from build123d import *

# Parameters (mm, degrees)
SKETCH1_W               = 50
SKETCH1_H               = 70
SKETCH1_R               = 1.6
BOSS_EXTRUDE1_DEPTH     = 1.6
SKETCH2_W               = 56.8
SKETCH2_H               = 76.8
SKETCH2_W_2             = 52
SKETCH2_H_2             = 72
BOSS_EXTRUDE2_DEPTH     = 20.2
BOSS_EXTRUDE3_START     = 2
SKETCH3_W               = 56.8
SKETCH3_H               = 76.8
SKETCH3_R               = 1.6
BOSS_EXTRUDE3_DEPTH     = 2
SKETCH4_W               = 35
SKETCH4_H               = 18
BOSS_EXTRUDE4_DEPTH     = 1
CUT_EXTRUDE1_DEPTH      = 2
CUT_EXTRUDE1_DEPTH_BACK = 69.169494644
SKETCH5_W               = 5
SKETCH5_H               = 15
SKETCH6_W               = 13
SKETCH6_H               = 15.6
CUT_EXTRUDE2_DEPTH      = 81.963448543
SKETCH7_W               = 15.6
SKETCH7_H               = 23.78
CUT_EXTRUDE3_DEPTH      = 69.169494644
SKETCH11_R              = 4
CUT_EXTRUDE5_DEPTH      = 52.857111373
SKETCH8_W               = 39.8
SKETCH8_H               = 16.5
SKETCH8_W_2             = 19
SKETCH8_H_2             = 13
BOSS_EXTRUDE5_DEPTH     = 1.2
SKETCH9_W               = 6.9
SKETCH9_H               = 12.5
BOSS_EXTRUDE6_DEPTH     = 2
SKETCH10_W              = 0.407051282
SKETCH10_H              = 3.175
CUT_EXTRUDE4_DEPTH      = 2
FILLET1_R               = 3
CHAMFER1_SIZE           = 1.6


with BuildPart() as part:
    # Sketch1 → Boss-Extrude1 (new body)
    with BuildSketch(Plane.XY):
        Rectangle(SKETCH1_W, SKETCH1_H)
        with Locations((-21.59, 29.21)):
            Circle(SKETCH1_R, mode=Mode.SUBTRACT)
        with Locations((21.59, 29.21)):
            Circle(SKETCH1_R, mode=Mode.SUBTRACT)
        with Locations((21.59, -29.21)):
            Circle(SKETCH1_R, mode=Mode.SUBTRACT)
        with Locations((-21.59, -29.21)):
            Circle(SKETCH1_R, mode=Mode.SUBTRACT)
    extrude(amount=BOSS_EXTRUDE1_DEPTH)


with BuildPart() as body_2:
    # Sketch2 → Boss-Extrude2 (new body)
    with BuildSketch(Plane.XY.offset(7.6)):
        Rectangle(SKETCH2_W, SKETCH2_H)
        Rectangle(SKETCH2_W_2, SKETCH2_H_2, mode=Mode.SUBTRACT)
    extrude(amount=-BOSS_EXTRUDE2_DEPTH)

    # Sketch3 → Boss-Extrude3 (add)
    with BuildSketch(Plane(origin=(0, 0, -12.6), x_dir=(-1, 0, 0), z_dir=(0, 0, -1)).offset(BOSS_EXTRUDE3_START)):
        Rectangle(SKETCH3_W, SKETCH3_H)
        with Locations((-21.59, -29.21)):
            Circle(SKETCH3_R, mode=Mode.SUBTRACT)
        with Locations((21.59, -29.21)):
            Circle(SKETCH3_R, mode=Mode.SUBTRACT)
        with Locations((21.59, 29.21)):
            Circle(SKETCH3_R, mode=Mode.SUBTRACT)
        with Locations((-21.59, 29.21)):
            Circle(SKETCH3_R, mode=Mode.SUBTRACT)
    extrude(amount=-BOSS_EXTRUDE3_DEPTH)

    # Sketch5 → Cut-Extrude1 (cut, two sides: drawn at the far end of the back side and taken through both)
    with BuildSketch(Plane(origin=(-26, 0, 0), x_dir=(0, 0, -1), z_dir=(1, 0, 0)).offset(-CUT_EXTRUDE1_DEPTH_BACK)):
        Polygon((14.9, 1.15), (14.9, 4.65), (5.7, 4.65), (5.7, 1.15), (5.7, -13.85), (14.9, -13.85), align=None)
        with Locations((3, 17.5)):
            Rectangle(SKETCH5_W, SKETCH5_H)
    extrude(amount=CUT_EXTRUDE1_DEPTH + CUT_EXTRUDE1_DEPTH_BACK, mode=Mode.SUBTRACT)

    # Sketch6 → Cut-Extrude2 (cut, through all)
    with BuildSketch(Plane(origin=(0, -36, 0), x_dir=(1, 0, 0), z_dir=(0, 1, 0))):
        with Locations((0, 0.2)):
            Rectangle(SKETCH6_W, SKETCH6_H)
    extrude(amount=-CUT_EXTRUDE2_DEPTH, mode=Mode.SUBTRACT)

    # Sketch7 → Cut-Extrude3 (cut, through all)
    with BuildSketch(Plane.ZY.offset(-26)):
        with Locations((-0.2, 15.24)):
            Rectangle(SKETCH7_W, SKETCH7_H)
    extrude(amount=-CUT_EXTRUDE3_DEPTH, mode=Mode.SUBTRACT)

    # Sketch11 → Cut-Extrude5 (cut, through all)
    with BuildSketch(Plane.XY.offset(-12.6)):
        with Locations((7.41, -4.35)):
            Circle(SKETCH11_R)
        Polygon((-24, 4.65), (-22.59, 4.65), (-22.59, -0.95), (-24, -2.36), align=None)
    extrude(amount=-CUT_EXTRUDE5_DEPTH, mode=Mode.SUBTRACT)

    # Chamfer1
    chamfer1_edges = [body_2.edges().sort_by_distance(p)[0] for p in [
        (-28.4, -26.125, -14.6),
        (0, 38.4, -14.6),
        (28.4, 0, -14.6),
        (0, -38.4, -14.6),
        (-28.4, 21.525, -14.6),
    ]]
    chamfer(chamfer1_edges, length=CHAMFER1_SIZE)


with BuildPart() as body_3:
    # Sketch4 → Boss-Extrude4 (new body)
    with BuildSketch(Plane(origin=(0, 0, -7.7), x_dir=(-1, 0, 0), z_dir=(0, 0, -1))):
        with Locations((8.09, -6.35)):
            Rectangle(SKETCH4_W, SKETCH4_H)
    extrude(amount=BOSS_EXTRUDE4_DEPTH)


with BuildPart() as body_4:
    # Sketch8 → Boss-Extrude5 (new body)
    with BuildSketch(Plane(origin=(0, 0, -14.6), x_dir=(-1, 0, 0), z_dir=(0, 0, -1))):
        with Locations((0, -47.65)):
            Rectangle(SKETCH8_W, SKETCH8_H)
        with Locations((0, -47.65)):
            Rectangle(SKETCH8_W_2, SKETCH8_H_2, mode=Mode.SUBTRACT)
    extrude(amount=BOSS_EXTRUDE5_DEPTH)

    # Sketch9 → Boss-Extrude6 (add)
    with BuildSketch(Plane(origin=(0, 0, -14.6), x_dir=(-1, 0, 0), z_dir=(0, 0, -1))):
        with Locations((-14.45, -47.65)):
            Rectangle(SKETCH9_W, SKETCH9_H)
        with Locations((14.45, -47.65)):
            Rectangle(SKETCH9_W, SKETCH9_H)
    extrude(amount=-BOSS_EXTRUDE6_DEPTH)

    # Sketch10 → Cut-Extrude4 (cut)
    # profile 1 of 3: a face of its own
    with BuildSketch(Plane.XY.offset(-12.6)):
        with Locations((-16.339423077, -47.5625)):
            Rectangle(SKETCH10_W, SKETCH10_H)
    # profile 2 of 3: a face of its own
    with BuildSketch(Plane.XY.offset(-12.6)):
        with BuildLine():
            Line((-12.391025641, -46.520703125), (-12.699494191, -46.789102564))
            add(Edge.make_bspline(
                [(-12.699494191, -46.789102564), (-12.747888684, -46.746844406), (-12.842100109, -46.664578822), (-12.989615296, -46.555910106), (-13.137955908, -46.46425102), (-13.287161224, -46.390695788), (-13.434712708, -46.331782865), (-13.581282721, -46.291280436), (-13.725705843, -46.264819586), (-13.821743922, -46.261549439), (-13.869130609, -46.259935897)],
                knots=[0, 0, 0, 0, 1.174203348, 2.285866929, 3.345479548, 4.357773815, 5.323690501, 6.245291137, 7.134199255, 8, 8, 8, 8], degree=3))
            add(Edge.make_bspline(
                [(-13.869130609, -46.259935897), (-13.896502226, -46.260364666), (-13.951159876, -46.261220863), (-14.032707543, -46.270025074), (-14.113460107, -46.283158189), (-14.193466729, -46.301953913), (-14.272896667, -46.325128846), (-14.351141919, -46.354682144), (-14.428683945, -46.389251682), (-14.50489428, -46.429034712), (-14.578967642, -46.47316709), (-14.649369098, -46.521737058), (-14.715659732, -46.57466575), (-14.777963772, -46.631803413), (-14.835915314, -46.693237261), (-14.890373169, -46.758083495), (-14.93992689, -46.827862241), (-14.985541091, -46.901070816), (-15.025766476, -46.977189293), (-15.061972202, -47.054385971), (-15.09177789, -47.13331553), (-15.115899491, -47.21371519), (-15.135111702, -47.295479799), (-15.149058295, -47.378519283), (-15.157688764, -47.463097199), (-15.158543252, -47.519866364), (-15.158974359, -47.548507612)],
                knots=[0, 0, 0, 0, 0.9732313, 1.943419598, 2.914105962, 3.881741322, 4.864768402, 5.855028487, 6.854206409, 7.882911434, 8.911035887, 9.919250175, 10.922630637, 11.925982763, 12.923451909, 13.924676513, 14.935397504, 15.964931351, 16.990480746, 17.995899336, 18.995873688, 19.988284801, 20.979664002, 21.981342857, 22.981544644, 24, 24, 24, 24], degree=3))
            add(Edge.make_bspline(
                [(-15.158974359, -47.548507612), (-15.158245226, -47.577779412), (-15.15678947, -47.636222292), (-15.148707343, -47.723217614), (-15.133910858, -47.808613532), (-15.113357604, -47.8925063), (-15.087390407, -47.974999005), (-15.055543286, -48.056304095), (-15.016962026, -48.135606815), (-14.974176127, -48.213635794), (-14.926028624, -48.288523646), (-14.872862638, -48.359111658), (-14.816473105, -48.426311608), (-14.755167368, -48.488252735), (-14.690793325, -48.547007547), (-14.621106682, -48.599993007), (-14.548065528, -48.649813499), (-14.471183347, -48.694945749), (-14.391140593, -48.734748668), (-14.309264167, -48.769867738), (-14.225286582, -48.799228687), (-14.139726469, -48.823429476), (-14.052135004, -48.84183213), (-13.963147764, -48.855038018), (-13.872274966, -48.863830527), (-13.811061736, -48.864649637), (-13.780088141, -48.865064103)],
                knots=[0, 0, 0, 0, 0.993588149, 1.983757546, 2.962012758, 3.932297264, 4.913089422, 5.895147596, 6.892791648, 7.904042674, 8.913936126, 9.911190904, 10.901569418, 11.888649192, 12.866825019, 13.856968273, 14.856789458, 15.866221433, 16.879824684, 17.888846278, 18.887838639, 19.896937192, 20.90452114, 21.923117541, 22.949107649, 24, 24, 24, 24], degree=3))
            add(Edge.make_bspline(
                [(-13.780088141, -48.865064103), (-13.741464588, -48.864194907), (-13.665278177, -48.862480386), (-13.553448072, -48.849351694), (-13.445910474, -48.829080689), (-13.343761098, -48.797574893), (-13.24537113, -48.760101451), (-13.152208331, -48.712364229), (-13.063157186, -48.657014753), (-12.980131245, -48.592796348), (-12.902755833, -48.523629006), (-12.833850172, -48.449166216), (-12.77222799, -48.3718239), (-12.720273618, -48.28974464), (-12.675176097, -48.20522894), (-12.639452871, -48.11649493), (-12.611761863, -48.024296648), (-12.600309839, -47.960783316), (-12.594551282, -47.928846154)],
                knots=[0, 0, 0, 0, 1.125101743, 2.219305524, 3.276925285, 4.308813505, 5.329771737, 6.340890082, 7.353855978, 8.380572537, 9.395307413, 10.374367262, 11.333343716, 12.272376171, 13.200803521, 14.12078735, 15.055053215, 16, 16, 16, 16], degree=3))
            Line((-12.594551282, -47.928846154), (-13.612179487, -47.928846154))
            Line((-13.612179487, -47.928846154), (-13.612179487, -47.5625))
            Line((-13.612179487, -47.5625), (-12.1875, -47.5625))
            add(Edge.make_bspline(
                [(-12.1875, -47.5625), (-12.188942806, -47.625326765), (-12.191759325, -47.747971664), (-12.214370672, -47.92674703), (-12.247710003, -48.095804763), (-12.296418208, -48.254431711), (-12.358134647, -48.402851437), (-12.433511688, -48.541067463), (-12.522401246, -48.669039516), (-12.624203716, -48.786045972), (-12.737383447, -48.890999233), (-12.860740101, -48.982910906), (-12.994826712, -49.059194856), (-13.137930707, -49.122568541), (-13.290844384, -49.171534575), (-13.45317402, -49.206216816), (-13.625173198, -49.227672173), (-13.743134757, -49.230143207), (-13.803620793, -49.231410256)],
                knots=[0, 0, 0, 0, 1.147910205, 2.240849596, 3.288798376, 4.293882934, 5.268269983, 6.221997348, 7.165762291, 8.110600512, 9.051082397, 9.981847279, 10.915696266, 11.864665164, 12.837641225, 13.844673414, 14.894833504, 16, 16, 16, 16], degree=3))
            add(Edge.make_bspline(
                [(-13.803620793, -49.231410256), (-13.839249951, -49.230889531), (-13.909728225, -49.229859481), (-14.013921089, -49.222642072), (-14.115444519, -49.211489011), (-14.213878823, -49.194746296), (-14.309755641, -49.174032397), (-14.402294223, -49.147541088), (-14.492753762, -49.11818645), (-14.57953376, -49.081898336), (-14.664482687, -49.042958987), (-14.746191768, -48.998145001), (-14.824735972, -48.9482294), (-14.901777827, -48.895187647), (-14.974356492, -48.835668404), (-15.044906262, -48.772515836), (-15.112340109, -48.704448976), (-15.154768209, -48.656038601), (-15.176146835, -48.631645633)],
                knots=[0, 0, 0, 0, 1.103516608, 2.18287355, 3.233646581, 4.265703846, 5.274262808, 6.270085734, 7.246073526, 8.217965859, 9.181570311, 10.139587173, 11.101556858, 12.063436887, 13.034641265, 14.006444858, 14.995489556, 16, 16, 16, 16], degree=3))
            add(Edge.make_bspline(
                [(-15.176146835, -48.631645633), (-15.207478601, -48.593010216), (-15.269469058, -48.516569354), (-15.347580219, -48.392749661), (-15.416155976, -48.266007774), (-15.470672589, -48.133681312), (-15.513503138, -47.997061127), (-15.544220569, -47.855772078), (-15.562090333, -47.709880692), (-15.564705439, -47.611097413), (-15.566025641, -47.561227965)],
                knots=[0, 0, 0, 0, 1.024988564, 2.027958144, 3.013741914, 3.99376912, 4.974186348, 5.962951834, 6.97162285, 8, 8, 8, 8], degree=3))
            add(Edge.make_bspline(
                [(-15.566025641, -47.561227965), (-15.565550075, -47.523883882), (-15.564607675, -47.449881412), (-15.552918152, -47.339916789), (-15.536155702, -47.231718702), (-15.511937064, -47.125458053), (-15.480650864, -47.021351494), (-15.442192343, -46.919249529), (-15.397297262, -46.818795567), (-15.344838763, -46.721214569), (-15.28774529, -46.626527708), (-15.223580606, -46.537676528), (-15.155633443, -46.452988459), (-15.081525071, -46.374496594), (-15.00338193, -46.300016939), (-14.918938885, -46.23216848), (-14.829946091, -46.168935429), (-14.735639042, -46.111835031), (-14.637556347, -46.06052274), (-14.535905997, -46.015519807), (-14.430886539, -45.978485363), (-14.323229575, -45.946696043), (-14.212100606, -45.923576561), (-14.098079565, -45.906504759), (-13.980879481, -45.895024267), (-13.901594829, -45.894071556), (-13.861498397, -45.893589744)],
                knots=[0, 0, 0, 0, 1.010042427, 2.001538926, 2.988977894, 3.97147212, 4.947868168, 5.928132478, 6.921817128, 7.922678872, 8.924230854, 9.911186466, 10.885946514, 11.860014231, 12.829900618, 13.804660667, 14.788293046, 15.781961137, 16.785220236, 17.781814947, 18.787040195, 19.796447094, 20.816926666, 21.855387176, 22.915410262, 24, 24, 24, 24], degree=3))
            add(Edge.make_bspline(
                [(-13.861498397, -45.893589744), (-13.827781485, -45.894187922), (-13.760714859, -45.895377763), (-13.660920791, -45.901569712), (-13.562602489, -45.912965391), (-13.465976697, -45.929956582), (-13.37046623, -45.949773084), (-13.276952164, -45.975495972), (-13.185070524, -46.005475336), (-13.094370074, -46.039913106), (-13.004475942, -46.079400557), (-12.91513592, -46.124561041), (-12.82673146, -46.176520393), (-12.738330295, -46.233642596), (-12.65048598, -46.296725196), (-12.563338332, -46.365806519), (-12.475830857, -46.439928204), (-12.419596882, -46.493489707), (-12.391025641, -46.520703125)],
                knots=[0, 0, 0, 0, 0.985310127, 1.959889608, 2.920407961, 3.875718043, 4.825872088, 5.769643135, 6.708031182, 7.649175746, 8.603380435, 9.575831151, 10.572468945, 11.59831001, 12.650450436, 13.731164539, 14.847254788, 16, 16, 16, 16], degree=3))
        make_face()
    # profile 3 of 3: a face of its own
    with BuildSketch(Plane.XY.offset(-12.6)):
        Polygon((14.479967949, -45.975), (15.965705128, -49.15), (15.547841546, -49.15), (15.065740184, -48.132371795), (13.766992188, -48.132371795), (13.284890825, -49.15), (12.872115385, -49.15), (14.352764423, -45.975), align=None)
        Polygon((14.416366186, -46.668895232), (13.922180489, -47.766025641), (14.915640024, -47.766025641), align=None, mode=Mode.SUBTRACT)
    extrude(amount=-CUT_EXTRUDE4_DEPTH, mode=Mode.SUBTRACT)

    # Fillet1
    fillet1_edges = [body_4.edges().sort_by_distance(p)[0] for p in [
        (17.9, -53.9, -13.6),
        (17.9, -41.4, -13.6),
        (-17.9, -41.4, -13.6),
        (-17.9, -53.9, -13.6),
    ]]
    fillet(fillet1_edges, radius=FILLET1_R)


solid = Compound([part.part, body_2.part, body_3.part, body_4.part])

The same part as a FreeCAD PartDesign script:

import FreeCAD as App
import Part
import Sketcher

V = App.Vector
Q = App.Units.Quantity


def edges_at(feature, points):
    """Names of the edges that pass closest to the given points."""
    edges = feature.Shape.Edges
    near = lambda p: min(range(len(edges)), key=lambda i: edges[i].distToShape(Part.Vertex(*p))[0])
    return sorted({f"Edge{near(p) + 1}" for p in points})

doc = App.newDocument("Part")
body = doc.addObject("PartDesign::Body", "Body")

sketch1 = body.newObject("Sketcher::SketchObject", "Sketch")
sketch1.AttachmentSupport = (doc.getObject("XY_Plane"), [""])
sketch1.MapMode = "FlatFace"
sketch1.addGeometry(Part.LineSegment(V(-25, 35, 0), V(-25, -35, 0)), False)
sketch1.addGeometry(Part.LineSegment(V(-25, -35, 0), V(25, -35, 0)), False)
sketch1.addGeometry(Part.LineSegment(V(25, -35, 0), V(25, 35, 0)), False)
sketch1.addGeometry(Part.LineSegment(V(25, 35, 0), V(-25, 35, 0)), False)
sketch1.addGeometry(Part.Circle(V(-21.59, -29.21, 0), V(0, 0, 1), 1.6), False)
sketch1.addGeometry(Part.Circle(V(21.59, -29.21, 0), V(0, 0, 1), 1.6), False)
sketch1.addGeometry(Part.Circle(V(-21.59, 29.21, 0), V(0, 0, 1), 1.6), False)
sketch1.addGeometry(Part.Circle(V(21.59, 29.21, 0), V(0, 0, 1), 1.6), False)
sketch1.addConstraint(Sketcher.Constraint("Coincident", 0, 2, 1, 1))
sketch1.addConstraint(Sketcher.Constraint("Coincident", 1, 2, 2, 1))
sketch1.addConstraint(Sketcher.Constraint("Coincident", 2, 2, 3, 1))
sketch1.addConstraint(Sketcher.Constraint("Coincident", 3, 2, 0, 1))
sketch1.addConstraint(Sketcher.Constraint("Vertical", 0))
sketch1.addConstraint(Sketcher.Constraint("Horizontal", 1))
sketch1.addConstraint(Sketcher.Constraint("Vertical", 2))
sketch1.addConstraint(Sketcher.Constraint("Horizontal", 3))
sketch1.addConstraint(Sketcher.Constraint("Equal", 4, 5))
sketch1.addConstraint(Sketcher.Constraint("Equal", 5, 6))
sketch1.addConstraint(Sketcher.Constraint("Equal", 6, 7))
sketch1.addConstraint(Sketcher.Constraint("Symmetric", 5, 3, 6, 3, -1, 1))
sketch1.addConstraint(Sketcher.Constraint("Symmetric", 4, 3, 7, 3, -1, 1))
sketch1.addConstraint(Sketcher.Constraint("Symmetric", 0, 2, 2, 2, -1, 1))
sketch1.addConstraint(Sketcher.Constraint("Symmetric", 4, 3, 5, 3, -2))
sketch1.addConstraint(Sketcher.Constraint("Diameter", 4, Q("3.2 mm")))
sketch1.addConstraint(Sketcher.Constraint("DistanceX", 1, 1, 1, 2, Q("50 mm")))
sketch1.addConstraint(Sketcher.Constraint("DistanceY", 0, 2, 0, 1, Q("70 mm")))
sketch1.addConstraint(Sketcher.Constraint("DistanceX", 4, 3, -1, 1, Q("21.59 mm")))
sketch1.addConstraint(Sketcher.Constraint("DistanceY", 4, 3, -1, 1, Q("29.21 mm")))
pad1 = body.newObject("PartDesign::Pad", "Pad")
pad1.Profile = sketch1
pad1.Length = 1.6
body2 = doc.addObject("PartDesign::Body", "Body001")

sketch2 = body2.newObject("Sketcher::SketchObject", "Sketch001")
sketch2.AttachmentSupport = (doc.getObject("XY_Plane001"), [""])
sketch2.MapMode = "FlatFace"
sketch2.AttachmentOffset = App.Placement(V(0, 0, 7.6), App.Rotation())
sketch2.addGeometry(Part.LineSegment(V(-28.4, 38.4, 0), V(-28.4, -38.4, 0)), False)
sketch2.addGeometry(Part.LineSegment(V(-28.4, -38.4, 0), V(28.4, -38.4, 0)), False)
sketch2.addGeometry(Part.LineSegment(V(28.4, -38.4, 0), V(28.4, 38.4, 0)), False)
sketch2.addGeometry(Part.LineSegment(V(28.4, 38.4, 0), V(-28.4, 38.4, 0)), False)
sketch2.addGeometry(Part.LineSegment(V(26, -36, 0), V(-26, -36, 0)), False)
sketch2.addGeometry(Part.LineSegment(V(-26, -36, 0), V(-26, 36, 0)), False)
sketch2.addGeometry(Part.LineSegment(V(-26, 36, 0), V(26, 36, 0)), False)
sketch2.addGeometry(Part.LineSegment(V(26, 36, 0), V(26, -36, 0)), False)
sketch2.addConstraint(Sketcher.Constraint("Coincident", 0, 2, 1, 1))
sketch2.addConstraint(Sketcher.Constraint("Coincident", 1, 2, 2, 1))
sketch2.addConstraint(Sketcher.Constraint("Coincident", 2, 2, 3, 1))
sketch2.addConstraint(Sketcher.Constraint("Coincident", 3, 2, 0, 1))
sketch2.addConstraint(Sketcher.Constraint("Coincident", 4, 2, 5, 1))
sketch2.addConstraint(Sketcher.Constraint("Coincident", 5, 2, 6, 1))
sketch2.addConstraint(Sketcher.Constraint("Coincident", 6, 2, 7, 1))
sketch2.addConstraint(Sketcher.Constraint("Coincident", 7, 2, 4, 1))
sketch2.addConstraint(Sketcher.Constraint("Vertical", 0))
sketch2.addConstraint(Sketcher.Constraint("Horizontal", 1))
sketch2.addConstraint(Sketcher.Constraint("Vertical", 2))
sketch2.addConstraint(Sketcher.Constraint("Horizontal", 3))
sketch2.addConstraint(Sketcher.Constraint("Horizontal", 4))
sketch2.addConstraint(Sketcher.Constraint("Vertical", 5))
sketch2.addConstraint(Sketcher.Constraint("Horizontal", 6))
sketch2.addConstraint(Sketcher.Constraint("Vertical", 7))
sketch2.addConstraint(Sketcher.Constraint("Symmetric", 0, 2, 2, 2, -1, 1))
sketch2.addConstraint(Sketcher.Constraint("Symmetric", 4, 2, 6, 2, -1, 1))
sketch2.addConstraint(Sketcher.Constraint("DistanceX", 4, 2, 4, 1, Q("52 mm")))
sketch2.addConstraint(Sketcher.Constraint("DistanceY", 5, 1, 5, 2, Q("72 mm")))
sketch2.addConstraint(Sketcher.Constraint("DistanceX", 1, 1, 1, 2, Q("56.8 mm")))
sketch2.addConstraint(Sketcher.Constraint("DistanceY", 0, 2, 0, 1, Q("76.8 mm")))
pad2 = body2.newObject("PartDesign::Pad", "Pad001")
pad2.Profile = sketch2
pad2.Length = 20.2
pad2.Reversed = True

sketch3 = body2.newObject("Sketcher::SketchObject", "Sketch002")
sketch3.AttachmentSupport = (doc.getObject("XY_Plane001"), [""])
sketch3.MapMode = "FlatFace"
sketch3.AttachmentOffset = App.Placement(V(0, 0, -14.6), App.Rotation())
sketch3.addGeometry(Part.LineSegment(V(28.4, 38.4, 0), V(28.4, -38.4, 0)), False)
sketch3.addGeometry(Part.LineSegment(V(28.4, -38.4, 0), V(-28.4, -38.4, 0)), False)
sketch3.addGeometry(Part.LineSegment(V(-28.4, -38.4, 0), V(-28.4, 38.4, 0)), False)
sketch3.addGeometry(Part.LineSegment(V(-28.4, 38.4, 0), V(28.4, 38.4, 0)), False)
sketch3.addGeometry(Part.Circle(V(21.59, -29.21, 0), V(0, 0, 1), 1.6), False)
sketch3.addGeometry(Part.Circle(V(-21.59, -29.21, 0), V(0, 0, 1), 1.6), False)
sketch3.addGeometry(Part.Circle(V(21.59, 29.21, 0), V(0, 0, 1), 1.6), False)
sketch3.addGeometry(Part.Circle(V(-21.59, 29.21, 0), V(0, 0, 1), 1.6), False)
sketch3.addConstraint(Sketcher.Constraint("Coincident", 0, 2, 1, 1))
sketch3.addConstraint(Sketcher.Constraint("Coincident", 1, 2, 2, 1))
sketch3.addConstraint(Sketcher.Constraint("Coincident", 2, 2, 3, 1))
sketch3.addConstraint(Sketcher.Constraint("Coincident", 3, 2, 0, 1))
sketch3.addConstraint(Sketcher.Constraint("Vertical", 0))
sketch3.addConstraint(Sketcher.Constraint("Horizontal", 1))
sketch3.addConstraint(Sketcher.Constraint("Vertical", 2))
sketch3.addConstraint(Sketcher.Constraint("Horizontal", 3))
sketch3.addConstraint(Sketcher.Constraint("Equal", 4, 5))
sketch3.addConstraint(Sketcher.Constraint("Equal", 5, 6))
sketch3.addConstraint(Sketcher.Constraint("Equal", 6, 7))
sketch3.addConstraint(Sketcher.Constraint("Symmetric", 5, 3, 6, 3, -1, 1))
sketch3.addConstraint(Sketcher.Constraint("Symmetric", 4, 3, 7, 3, -1, 1))
sketch3.addConstraint(Sketcher.Constraint("Symmetric", 0, 2, 2, 2, -1, 1))
sketch3.addConstraint(Sketcher.Constraint("Symmetric", 4, 3, 5, 3, -2))
sketch3.addConstraint(Sketcher.Constraint("Diameter", 4, Q("3.2 mm")))
sketch3.addConstraint(Sketcher.Constraint("DistanceX", 1, 2, 1, 1, Q("56.8 mm")))
sketch3.addConstraint(Sketcher.Constraint("DistanceY", 0, 2, 0, 1, Q("76.8 mm")))
sketch3.addConstraint(Sketcher.Constraint("DistanceX", -1, 1, 4, 3, Q("21.59 mm")))
sketch3.addConstraint(Sketcher.Constraint("DistanceY", 4, 3, -1, 1, Q("29.21 mm")))
pad3 = body2.newObject("PartDesign::Pad", "Pad002")
pad3.Profile = sketch3
pad3.Length = 2

sketch4 = body2.newObject("Sketcher::SketchObject", "Sketch003")
sketch4.AttachmentSupport = (doc.getObject("YZ_Plane001"), [""])
sketch4.MapMode = "FlatFace"
sketch4.AttachmentOffset = App.Placement(V(0, 0, -26), App.Rotation())
sketch4.addGeometry(Part.LineSegment(V(4.65, -14.9, 0), V(4.65, -5.7, 0)), False)
sketch4.addGeometry(Part.LineSegment(V(4.65, -5.7, 0), V(-13.85, -5.7, 0)), False)
sketch4.addGeometry(Part.LineSegment(V(-13.85, -5.7, 0), V(-13.85, -14.9, 0)), False)
sketch4.addGeometry(Part.LineSegment(V(-13.85, -14.9, 0), V(4.65, -14.9, 0)), False)
sketch4.addGeometry(Part.LineSegment(V(25, -0.5, 0), V(10, -0.5, 0)), False)
sketch4.addGeometry(Part.LineSegment(V(10, -0.5, 0), V(10, -5.5, 0)), False)
sketch4.addGeometry(Part.LineSegment(V(10, -5.5, 0), V(25, -5.5, 0)), False)
sketch4.addGeometry(Part.LineSegment(V(25, -5.5, 0), V(25, -0.5, 0)), False)
sketch4.addConstraint(Sketcher.Constraint("Coincident", 0, 2, 1, 1))
sketch4.addConstraint(Sketcher.Constraint("Coincident", 1, 2, 2, 1))
sketch4.addConstraint(Sketcher.Constraint("Coincident", 2, 2, 3, 1))
sketch4.addConstraint(Sketcher.Constraint("Coincident", 3, 2, 0, 1))
sketch4.addConstraint(Sketcher.Constraint("Coincident", 4, 2, 5, 1))
sketch4.addConstraint(Sketcher.Constraint("Coincident", 5, 2, 6, 1))
sketch4.addConstraint(Sketcher.Constraint("Coincident", 6, 2, 7, 1))
sketch4.addConstraint(Sketcher.Constraint("Coincident", 7, 2, 4, 1))
sketch4.addConstraint(Sketcher.Constraint("Vertical", 0))
sketch4.addConstraint(Sketcher.Constraint("Horizontal", 1))
sketch4.addConstraint(Sketcher.Constraint("Vertical", 2))
sketch4.addConstraint(Sketcher.Constraint("Horizontal", 3))
sketch4.addConstraint(Sketcher.Constraint("Horizontal", 4))
sketch4.addConstraint(Sketcher.Constraint("Vertical", 5))
sketch4.addConstraint(Sketcher.Constraint("Horizontal", 6))
sketch4.addConstraint(Sketcher.Constraint("Vertical", 7))
sketch4.addConstraint(Sketcher.Constraint("DistanceX", 4, 2, 4, 1, Q("15 mm")))
sketch4.addConstraint(Sketcher.Constraint("DistanceY", 5, 2, 5, 1, Q("5 mm")))
sketch4.addConstraint(Sketcher.Constraint("DistanceX", 1, 2, 1, 1, Q("18.5 mm")))
sketch4.addConstraint(Sketcher.Constraint("DistanceY", 0, 1, 0, 2, Q("9.2 mm")))
sketch4.addConstraint(Sketcher.Constraint("DistanceX", -1, 1, 4, 2, Q("10 mm")))
sketch4.addConstraint(Sketcher.Constraint("DistanceY", 0, 2, -1, 1, Q("5.7 mm")))
sketch4.addConstraint(Sketcher.Constraint("DistanceY", 4, 2, -1, 1, Q("0.5 mm")))
sketch4.addConstraint(Sketcher.Constraint("DistanceX", -1, 1, 0, 2, Q("4.65 mm")))
pocket1 = body2.newObject("PartDesign::Pocket", "Pocket")
pocket1.Profile = sketch4
pocket1.Type = "TwoLengths"
pocket1.Length = 2
pocket1.Length2 = 69.169495
pocket1.Reversed = True

sketch5 = body2.newObject("Sketcher::SketchObject", "Sketch004")
sketch5.AttachmentSupport = (doc.getObject("XZ_Plane001"), [""])
sketch5.MapMode = "FlatFace"
sketch5.AttachmentOffset = App.Placement(V(0, 0, 36), App.Rotation())
sketch5.addGeometry(Part.LineSegment(V(-6.5, -8, 0), V(-6.5, 7.6, 0)), False)
sketch5.addGeometry(Part.LineSegment(V(-6.5, 7.6, 0), V(6.5, 7.6, 0)), False)
sketch5.addGeometry(Part.LineSegment(V(6.5, 7.6, 0), V(6.5, -8, 0)), False)
sketch5.addGeometry(Part.LineSegment(V(6.5, -8, 0), V(-6.5, -8, 0)), False)
sketch5.addConstraint(Sketcher.Constraint("Coincident", 0, 2, 1, 1))
sketch5.addConstraint(Sketcher.Constraint("Coincident", 1, 2, 2, 1))
sketch5.addConstraint(Sketcher.Constraint("Coincident", 2, 2, 3, 1))
sketch5.addConstraint(Sketcher.Constraint("Coincident", 3, 2, 0, 1))
sketch5.addConstraint(Sketcher.Constraint("Vertical", 0))
sketch5.addConstraint(Sketcher.Constraint("Horizontal", 1))
sketch5.addConstraint(Sketcher.Constraint("Vertical", 2))
sketch5.addConstraint(Sketcher.Constraint("Horizontal", 3))
sketch5.addConstraint(Sketcher.Constraint("DistanceX", 1, 1, 1, 2, Q("13 mm")))
sketch5.addConstraint(Sketcher.Constraint("DistanceY", 0, 1, 0, 2, Q("15.6 mm")))
sketch5.addConstraint(Sketcher.Constraint("DistanceY", 2, 2, -1, 1, Q("8 mm")))
sketch5.addConstraint(Sketcher.Constraint("DistanceX", 0, 2, -1, 1, Q("6.5 mm")))
pocket2 = body2.newObject("PartDesign::Pocket", "Pocket001")
pocket2.Profile = sketch5
pocket2.Type = "ThroughAll"
pocket2.Reversed = True

sketch6 = body2.newObject("Sketcher::SketchObject", "Sketch005")
sketch6.AttachmentSupport = (doc.getObject("YZ_Plane001"), [""])
sketch6.MapMode = "FlatFace"
sketch6.AttachmentOffset = App.Placement(V(0, 0, 26), App.Rotation())
sketch6.addGeometry(Part.LineSegment(V(27.13, -8, 0), V(3.35, -8, 0)), False)
sketch6.addGeometry(Part.LineSegment(V(3.35, -8, 0), V(3.35, 7.6, 0)), False)
sketch6.addGeometry(Part.LineSegment(V(3.35, 7.6, 0), V(27.13, 7.6, 0)), False)
sketch6.addGeometry(Part.LineSegment(V(27.13, 7.6, 0), V(27.13, -8, 0)), False)
sketch6.addConstraint(Sketcher.Constraint("Coincident", 0, 2, 1, 1))
sketch6.addConstraint(Sketcher.Constraint("Coincident", 1, 2, 2, 1))
sketch6.addConstraint(Sketcher.Constraint("Coincident", 2, 2, 3, 1))
sketch6.addConstraint(Sketcher.Constraint("Coincident", 3, 2, 0, 1))
sketch6.addConstraint(Sketcher.Constraint("Horizontal", 0))
sketch6.addConstraint(Sketcher.Constraint("Vertical", 1))
sketch6.addConstraint(Sketcher.Constraint("Horizontal", 2))
sketch6.addConstraint(Sketcher.Constraint("Vertical", 3))
sketch6.addConstraint(Sketcher.Constraint("DistanceY", 1, 1, 1, 2, Q("15.6 mm")))
sketch6.addConstraint(Sketcher.Constraint("DistanceY", 0, 2, -1, 1, Q("8 mm")))
sketch6.addConstraint(Sketcher.Constraint("DistanceX", 0, 2, 0, 1, Q("23.78 mm")))
sketch6.addConstraint(Sketcher.Constraint("DistanceX", -1, 1, 0, 2, Q("3.35 mm")))
pocket3 = body2.newObject("PartDesign::Pocket", "Pocket002")
pocket3.Profile = sketch6
pocket3.Type = "ThroughAll"
pocket3.Reversed = True

sketch7 = body2.newObject("Sketcher::SketchObject", "Sketch006")
sketch7.AttachmentSupport = (doc.getObject("XY_Plane001"), [""])
sketch7.MapMode = "FlatFace"
sketch7.AttachmentOffset = App.Placement(V(0, 0, -12.6), App.Rotation())
sketch7.addGeometry(Part.Circle(V(7.41, -4.35, 0), V(0, 0, 1), 4), False)
sketch7.addGeometry(Part.LineSegment(V(-22.59, 4.65, 0), V(-24, 4.65, 0)), False)
sketch7.addGeometry(Part.LineSegment(V(-24, 4.65, 0), V(-24, -2.36, 0)), False)
sketch7.addGeometry(Part.LineSegment(V(-24, -2.36, 0), V(-22.59, -0.95, 0)), False)
sketch7.addGeometry(Part.LineSegment(V(-22.59, -0.95, 0), V(-22.59, 4.65, 0)), False)
sketch7.addConstraint(Sketcher.Constraint("Coincident", 1, 2, 2, 1))
sketch7.addConstraint(Sketcher.Constraint("Coincident", 2, 2, 3, 1))
sketch7.addConstraint(Sketcher.Constraint("Coincident", 3, 2, 4, 1))
sketch7.addConstraint(Sketcher.Constraint("Coincident", 4, 2, 1, 1))
sketch7.addConstraint(Sketcher.Constraint("Horizontal", 1))
sketch7.addConstraint(Sketcher.Constraint("Vertical", 2))
sketch7.addConstraint(Sketcher.Constraint("Vertical", 4))
sketch7.addConstraint(Sketcher.Constraint("Diameter", 0, Q("8 mm")))
sketch7.addConstraint(Sketcher.Constraint("Angle", 3, Q("45 deg")))
sketch7.addConstraint(Sketcher.Constraint("DistanceY", 4, 1, 4, 2, Q("5.6 mm")))
sketch7.addConstraint(Sketcher.Constraint("DistanceX", 1, 2, -1, 1, Q("24 mm")))
sketch7.addConstraint(Sketcher.Constraint("DistanceY", 0, 3, 1, 2, Q("9 mm")))
sketch7.addConstraint(Sketcher.Constraint("DistanceX", 3, 2, 0, 3, Q("30 mm")))
sketch7.addConstraint(Sketcher.Constraint("DistanceX", 1, 2, 1, 1, Q("1.41 mm")))
sketch7.addConstraint(Sketcher.Constraint("DistanceY", 0, 3, -1, 1, Q("4.35 mm")))
pocket4 = body2.newObject("PartDesign::Pocket", "Pocket003")
pocket4.Profile = sketch7
pocket4.Type = "ThroughAll"
doc.recompute()

chamfer = body2.newObject("PartDesign::Chamfer", "Chamfer")
chamfer.Base = (pocket4, edges_at(pocket4, [
    (-28.4, -26.125, -14.6),
    (0, 38.4, -14.6),
    (28.4, 0, -14.6),
    (0, -38.4, -14.6),
    (-28.4, 21.525, -14.6),
]))
chamfer.Size = 1.6
body3 = doc.addObject("PartDesign::Body", "Body002")

sketch8 = body3.newObject("Sketcher::SketchObject", "Sketch007")
sketch8.AttachmentSupport = (doc.getObject("XY_Plane002"), [""])
sketch8.MapMode = "FlatFace"
sketch8.AttachmentOffset = App.Placement(V(0, 0, -7.7), App.Rotation())
sketch8.addGeometry(Part.LineSegment(V(9.41, 2.65, 0), V(9.41, -15.35, 0)), False)
sketch8.addGeometry(Part.LineSegment(V(9.41, -15.35, 0), V(-25.59, -15.35, 0)), False)
sketch8.addGeometry(Part.LineSegment(V(-25.59, -15.35, 0), V(-25.59, 2.65, 0)), False)
sketch8.addGeometry(Part.LineSegment(V(-25.59, 2.65, 0), V(9.41, 2.65, 0)), False)
sketch8.addConstraint(Sketcher.Constraint("Coincident", 0, 2, 1, 1))
sketch8.addConstraint(Sketcher.Constraint("Coincident", 1, 2, 2, 1))
sketch8.addConstraint(Sketcher.Constraint("Coincident", 2, 2, 3, 1))
sketch8.addConstraint(Sketcher.Constraint("Coincident", 3, 2, 0, 1))
sketch8.addConstraint(Sketcher.Constraint("Vertical", 0))
sketch8.addConstraint(Sketcher.Constraint("Horizontal", 1))
sketch8.addConstraint(Sketcher.Constraint("Vertical", 2))
sketch8.addConstraint(Sketcher.Constraint("Horizontal", 3))
sketch8.addConstraint(Sketcher.Constraint("DistanceX", 1, 2, 1, 1, Q("35 mm")))
sketch8.addConstraint(Sketcher.Constraint("DistanceY", 0, 2, 0, 1, Q("18 mm")))
sketch8.addConstraint(Sketcher.Constraint("DistanceX", -1, 1, 0, 2, Q("9.41 mm")))
sketch8.addConstraint(Sketcher.Constraint("DistanceY", 0, 2, -1, 1, Q("15.35 mm")))
pad4 = body3.newObject("PartDesign::Pad", "Pad003")
pad4.Profile = sketch8
pad4.Length = 1
pad4.Reversed = True
body4 = doc.addObject("PartDesign::Body", "Body003")

sketch9 = body4.newObject("Sketcher::SketchObject", "Sketch008")
sketch9.AttachmentSupport = (doc.getObject("XY_Plane003"), [""])
sketch9.MapMode = "FlatFace"
sketch9.AttachmentOffset = App.Placement(V(0, 0, -14.6), App.Rotation())
sketch9.addGeometry(Part.LineSegment(V(19.9, -39.4, 0), V(19.9, -55.9, 0)), False)
sketch9.addGeometry(Part.LineSegment(V(19.9, -55.9, 0), V(-19.9, -55.9, 0)), False)
sketch9.addGeometry(Part.LineSegment(V(-19.9, -55.9, 0), V(-19.9, -39.4, 0)), False)
sketch9.addGeometry(Part.LineSegment(V(-19.9, -39.4, 0), V(19.9, -39.4, 0)), False)
sketch9.addGeometry(Part.LineSegment(V(-9.5, -54.15, 0), V(9.5, -54.15, 0)), False)
sketch9.addGeometry(Part.LineSegment(V(9.5, -54.15, 0), V(9.5, -41.15, 0)), False)
sketch9.addGeometry(Part.LineSegment(V(9.5, -41.15, 0), V(-9.5, -41.15, 0)), False)
sketch9.addGeometry(Part.LineSegment(V(-9.5, -41.15, 0), V(-9.5, -54.15, 0)), False)
sketch9.addConstraint(Sketcher.Constraint("Coincident", 0, 2, 1, 1))
sketch9.addConstraint(Sketcher.Constraint("Coincident", 1, 2, 2, 1))
sketch9.addConstraint(Sketcher.Constraint("Coincident", 2, 2, 3, 1))
sketch9.addConstraint(Sketcher.Constraint("Coincident", 3, 2, 0, 1))
sketch9.addConstraint(Sketcher.Constraint("Coincident", 4, 2, 5, 1))
sketch9.addConstraint(Sketcher.Constraint("Coincident", 5, 2, 6, 1))
sketch9.addConstraint(Sketcher.Constraint("Coincident", 6, 2, 7, 1))
sketch9.addConstraint(Sketcher.Constraint("Coincident", 7, 2, 4, 1))
sketch9.addConstraint(Sketcher.Constraint("Vertical", 0))
sketch9.addConstraint(Sketcher.Constraint("Horizontal", 1))
sketch9.addConstraint(Sketcher.Constraint("Vertical", 2))
sketch9.addConstraint(Sketcher.Constraint("Horizontal", 3))
sketch9.addConstraint(Sketcher.Constraint("Horizontal", 4))
sketch9.addConstraint(Sketcher.Constraint("Vertical", 5))
sketch9.addConstraint(Sketcher.Constraint("Horizontal", 6))
sketch9.addConstraint(Sketcher.Constraint("Vertical", 7))
sketch9.addConstraint(Sketcher.Constraint("DistanceX", 4, 1, 4, 2, Q("19 mm")))
sketch9.addConstraint(Sketcher.Constraint("DistanceY", 5, 1, 5, 2, Q("13 mm")))
sketch9.addConstraint(Sketcher.Constraint("DistanceX", 1, 2, 1, 1, Q("39.8 mm")))
sketch9.addConstraint(Sketcher.Constraint("DistanceY", 0, 2, 0, 1, Q("16.5 mm")))
sketch9.addConstraint(Sketcher.Constraint("DistanceX", -1, 1, 0, 2, Q("19.9 mm")))
sketch9.addConstraint(Sketcher.Constraint("DistanceY", 0, 2, -1, 1, Q("55.9 mm")))
sketch9.addConstraint(Sketcher.Constraint("DistanceX", -1, 1, 4, 2, Q("9.5 mm")))
sketch9.addConstraint(Sketcher.Constraint("DistanceY", 4, 2, -1, 1, Q("54.15 mm")))
pad5 = body4.newObject("PartDesign::Pad", "Pad004")
pad5.Profile = sketch9
pad5.Length = 1.2
pad5.Reversed = True

sketch10 = body4.newObject("Sketcher::SketchObject", "Sketch009")
sketch10.AttachmentSupport = (doc.getObject("XY_Plane003"), [""])
sketch10.MapMode = "FlatFace"
sketch10.AttachmentOffset = App.Placement(V(0, 0, -14.6), App.Rotation())
sketch10.addGeometry(Part.LineSegment(V(17.9, -41.4, 0), V(17.9, -53.9, 0)), False)
sketch10.addGeometry(Part.LineSegment(V(17.9, -53.9, 0), V(11, -53.9, 0)), False)
sketch10.addGeometry(Part.LineSegment(V(11, -53.9, 0), V(11, -41.4, 0)), False)
sketch10.addGeometry(Part.LineSegment(V(11, -41.4, 0), V(17.9, -41.4, 0)), False)
sketch10.addGeometry(Part.LineSegment(V(-11, -41.4, 0), V(-11, -53.9, 0)), False)
sketch10.addGeometry(Part.LineSegment(V(-11, -53.9, 0), V(-17.9, -53.9, 0)), False)
sketch10.addGeometry(Part.LineSegment(V(-17.9, -53.9, 0), V(-17.9, -41.4, 0)), False)
sketch10.addGeometry(Part.LineSegment(V(-17.9, -41.4, 0), V(-11, -41.4, 0)), False)
sketch10.addConstraint(Sketcher.Constraint("Coincident", 0, 2, 1, 1))
sketch10.addConstraint(Sketcher.Constraint("Coincident", 1, 2, 2, 1))
sketch10.addConstraint(Sketcher.Constraint("Coincident", 2, 2, 3, 1))
sketch10.addConstraint(Sketcher.Constraint("Coincident", 3, 2, 0, 1))
sketch10.addConstraint(Sketcher.Constraint("Coincident", 4, 2, 5, 1))
sketch10.addConstraint(Sketcher.Constraint("Coincident", 5, 2, 6, 1))
sketch10.addConstraint(Sketcher.Constraint("Coincident", 6, 2, 7, 1))
sketch10.addConstraint(Sketcher.Constraint("Coincident", 7, 2, 4, 1))
sketch10.addConstraint(Sketcher.Constraint("Vertical", 0))
sketch10.addConstraint(Sketcher.Constraint("Horizontal", 1))
sketch10.addConstraint(Sketcher.Constraint("Vertical", 2))
sketch10.addConstraint(Sketcher.Constraint("Horizontal", 3))
sketch10.addConstraint(Sketcher.Constraint("Vertical", 4))
sketch10.addConstraint(Sketcher.Constraint("Horizontal", 5))
sketch10.addConstraint(Sketcher.Constraint("Vertical", 6))
sketch10.addConstraint(Sketcher.Constraint("Horizontal", 7))
sketch10.addConstraint(Sketcher.Constraint("Symmetric", 1, 2, 4, 2, -2))
sketch10.addConstraint(Sketcher.Constraint("Symmetric", 3, 2, 6, 2, -2))
sketch10.addConstraint(Sketcher.Constraint("DistanceX", 1, 2, 1, 1, Q("6.9 mm")))
sketch10.addConstraint(Sketcher.Constraint("DistanceY", 0, 2, 0, 1, Q("12.5 mm")))
sketch10.addConstraint(Sketcher.Constraint("DistanceX", -1, 1, 1, 2, Q("11 mm")))
sketch10.addConstraint(Sketcher.Constraint("DistanceY", 0, 2, -1, 1, Q("53.9 mm")))
pad6 = body4.newObject("PartDesign::Pad", "Pad005")
pad6.Profile = sketch10
pad6.Length = 2

sketch11 = body4.newObject("Sketcher::SketchObject", "Sketch010")
sketch11.AttachmentSupport = (doc.getObject("XY_Plane003"), [""])
sketch11.MapMode = "FlatFace"
sketch11.AttachmentOffset = App.Placement(V(0, 0, -12.6), App.Rotation())
sketch11.addGeometry(Part.LineSegment(V(-16.542949, -45.975, 0), V(-16.542949, -49.15, 0)), False)
sketch11.addGeometry(Part.LineSegment(V(-16.542949, -49.15, 0), V(-16.135897, -49.15, 0)), False)
sketch11.addGeometry(Part.LineSegment(V(-16.135897, -49.15, 0), V(-16.135897, -45.975, 0)), False)
sketch11.addGeometry(Part.LineSegment(V(-16.135897, -45.975, 0), V(-16.542949, -45.975, 0)), False)
sketch11.addGeometry(Part.LineSegment(V(-12.699494, -46.789103, 0), V(-12.391026, -46.520703, 0)), False)
sketch11.addGeometry(Part.BSplineCurve([V(-13.861498, -45.89359, 0), V(-13.827781, -45.894188, 0), V(-13.760715, -45.895378, 0), V(-13.660921, -45.90157, 0), V(-13.562602, -45.912965, 0), V(-13.465977, -45.929957, 0), V(-13.370466, -45.949773, 0), V(-13.276952, -45.975496, 0), V(-13.185071, -46.005475, 0), V(-13.09437, -46.039913, 0), V(-13.004476, -46.079401, 0), V(-12.915136, -46.124561, 0), V(-12.826731, -46.17652, 0), V(-12.73833, -46.233643, 0), V(-12.650486, -46.296725, 0), V(-12.563338, -46.365807, 0), V(-12.475831, -46.439928, 0), V(-12.419597, -46.49349, 0), V(-12.391026, -46.520703, 0)], [4, 1, 1, 1, 1, 1, 1, 1, 1, 1, 1, 1, 1, 1, 1, 1, 4], [0, 0.985310127, 1.959889608, 2.920407961, 3.875718043, 4.825872088, 5.769643135, 6.708031182, 7.649175746, 8.603380435, 9.575831151, 10.572468945, 11.59831001, 12.650450436, 13.731164539, 14.847254788, 16], False, 3, [1, 1, 1, 1, 1, 1, 1, 1, 1, 1, 1, 1, 1, 1, 1, 1, 1, 1, 1], False), False)
sketch11.addGeometry(Part.BSplineCurve([V(-15.566026, -47.561228, 0), V(-15.56555, -47.523884, 0), V(-15.564608, -47.449881, 0), V(-15.552918, -47.339917, 0), V(-15.536156, -47.231719, 0), V(-15.511937, -47.125458, 0), V(-15.480651, -47.021351, 0), V(-15.442192, -46.91925, 0), V(-15.397297, -46.818796, 0), V(-15.344839, -46.721215, 0), V(-15.287745, -46.626528, 0), V(-15.223581, -46.537677, 0), V(-15.155633, -46.452988, 0), V(-15.081525, -46.374497, 0), V(-15.003382, -46.300017, 0), V(-14.918939, -46.232168, 0), V(-14.829946, -46.168935, 0), V(-14.735639, -46.111835, 0), V(-14.637556, -46.060523, 0), V(-14.535906, -46.01552, 0), V(-14.430887, -45.978485, 0), V(-14.32323, -45.946696, 0), V(-14.212101, -45.923577, 0), V(-14.09808, -45.906505, 0), V(-13.980879, -45.895024, 0), V(-13.901595, -45.894072, 0), V(-13.861498, -45.89359, 0)], [4, 1, 1, 1, 1, 1, 1, 1, 1, 1, 1, 1, 1, 1, 1, 1, 1, 1, 1, 1, 1, 1, 1, 1, 4], [0, 1.010042427, 2.001538926, 2.988977894, 3.97147212, 4.947868168, 5.928132478, 6.921817128, 7.922678872, 8.924230854, 9.911186466, 10.885946514, 11.860014231, 12.829900618, 13.804660667, 14.788293046, 15.781961137, 16.785220236, 17.781814947, 18.787040195, 19.796447094, 20.816926666, 21.855387176, 22.915410262, 24], False, 3, [1, 1, 1, 1, 1, 1, 1, 1, 1, 1, 1, 1, 1, 1, 1, 1, 1, 1, 1, 1, 1, 1, 1, 1, 1, 1, 1], False), False)
sketch11.addGeometry(Part.BSplineCurve([V(-15.176147, -48.631646, 0), V(-15.207479, -48.59301, 0), V(-15.269469, -48.516569, 0), V(-15.34758, -48.39275, 0), V(-15.416156, -48.266008, 0), V(-15.470673, -48.133681, 0), V(-15.513503, -47.997061, 0), V(-15.544221, -47.855772, 0), V(-15.56209, -47.709881, 0), V(-15.564705, -47.611097, 0), V(-15.566026, -47.561228, 0)], [4, 1, 1, 1, 1, 1, 1, 1, 4], [0, 1.024988564, 2.027958144, 3.013741914, 3.99376912, 4.974186348, 5.962951834, 6.97162285, 8], False, 3, [1, 1, 1, 1, 1, 1, 1, 1, 1, 1, 1], False), False)
sketch11.addGeometry(Part.BSplineCurve([V(-13.803621, -49.23141, 0), V(-13.83925, -49.23089, 0), V(-13.909728, -49.229859, 0), V(-14.013921, -49.222642, 0), V(-14.115445, -49.211489, 0), V(-14.213879, -49.194746, 0), V(-14.309756, -49.174032, 0), V(-14.402294, -49.147541, 0), V(-14.492754, -49.118186, 0), V(-14.579534, -49.081898, 0), V(-14.664483, -49.042959, 0), V(-14.746192, -48.998145, 0), V(-14.824736, -48.948229, 0), V(-14.901778, -48.895188, 0), V(-14.974356, -48.835668, 0), V(-15.044906, -48.772516, 0), V(-15.11234, -48.704449, 0), V(-15.154768, -48.656039, 0), V(-15.176147, -48.631646, 0)], [4, 1, 1, 1, 1, 1, 1, 1, 1, 1, 1, 1, 1, 1, 1, 1, 4], [0, 1.103516608, 2.18287355, 3.233646581, 4.265703846, 5.274262808, 6.270085734, 7.246073526, 8.217965859, 9.181570311, 10.139587173, 11.101556858, 12.063436887, 13.034641265, 14.006444858, 14.995489556, 16], False, 3, [1, 1, 1, 1, 1, 1, 1, 1, 1, 1, 1, 1, 1, 1, 1, 1, 1, 1, 1], False), False)
sketch11.addGeometry(Part.BSplineCurve([V(-12.1875, -47.5625, 0), V(-12.188943, -47.625327, 0), V(-12.191759, -47.747972, 0), V(-12.214371, -47.926747, 0), V(-12.24771, -48.095805, 0), V(-12.296418, -48.254432, 0), V(-12.358135, -48.402851, 0), V(-12.433512, -48.541067, 0), V(-12.522401, -48.66904, 0), V(-12.624204, -48.786046, 0), V(-12.737383, -48.890999, 0), V(-12.86074, -48.982911, 0), V(-12.994827, -49.059195, 0), V(-13.137931, -49.122569, 0), V(-13.290844, -49.171535, 0), V(-13.453174, -49.206217, 0), V(-13.625173, -49.227672, 0), V(-13.743135, -49.230143, 0), V(-13.803621, -49.23141, 0)], [4, 1, 1, 1, 1, 1, 1, 1, 1, 1, 1, 1, 1, 1, 1, 1, 4], [0, 1.147910205, 2.240849596, 3.288798376, 4.293882934, 5.268269983, 6.221997348, 7.165762291, 8.110600512, 9.051082397, 9.981847279, 10.915696266, 11.864665164, 12.837641225, 13.844673414, 14.894833504, 16], False, 3, [1, 1, 1, 1, 1, 1, 1, 1, 1, 1, 1, 1, 1, 1, 1, 1, 1, 1, 1], False), False)
sketch11.addGeometry(Part.LineSegment(V(-12.1875, -47.5625, 0), V(-13.612179, -47.5625, 0)), False)
sketch11.addGeometry(Part.LineSegment(V(-13.612179, -47.5625, 0), V(-13.612179, -47.928846, 0)), False)
sketch11.addGeometry(Part.LineSegment(V(-13.612179, -47.928846, 0), V(-12.594551, -47.928846, 0)), False)
sketch11.addGeometry(Part.BSplineCurve([V(-13.780088, -48.865064, 0), V(-13.741465, -48.864195, 0), V(-13.665278, -48.86248, 0), V(-13.553448, -48.849352, 0), V(-13.44591, -48.829081, 0), V(-13.343761, -48.797575, 0), V(-13.245371, -48.760101, 0), V(-13.152208, -48.712364, 0), V(-13.063157, -48.657015, 0), V(-12.980131, -48.592796, 0), V(-12.902756, -48.523629, 0), V(-12.83385, -48.449166, 0), V(-12.772228, -48.371824, 0), V(-12.720274, -48.289745, 0), V(-12.675176, -48.205229, 0), V(-12.639453, -48.116495, 0), V(-12.611762, -48.024297, 0), V(-12.60031, -47.960783, 0), V(-12.594551, -47.928846, 0)], [4, 1, 1, 1, 1, 1, 1, 1, 1, 1, 1, 1, 1, 1, 1, 1, 4], [0, 1.125101743, 2.219305524, 3.276925285, 4.308813505, 5.329771737, 6.340890082, 7.353855978, 8.380572537, 9.395307413, 10.374367262, 11.333343716, 12.272376171, 13.200803521, 14.12078735, 15.055053215, 16], False, 3, [1, 1, 1, 1, 1, 1, 1, 1, 1, 1, 1, 1, 1, 1, 1, 1, 1, 1, 1], False), False)
sketch11.addGeometry(Part.BSplineCurve([V(-15.158974, -47.548508, 0), V(-15.158245, -47.577779, 0), V(-15.156789, -47.636222, 0), V(-15.148707, -47.723218, 0), V(-15.133911, -47.808614, 0), V(-15.113358, -47.892506, 0), V(-15.08739, -47.974999, 0), V(-15.055543, -48.056304, 0), V(-15.016962, -48.135607, 0), V(-14.974176, -48.213636, 0), V(-14.926029, -48.288524, 0), V(-14.872863, -48.359112, 0), V(-14.816473, -48.426312, 0), V(-14.755167, -48.488253, 0), V(-14.690793, -48.547008, 0), V(-14.621107, -48.599993, 0), V(-14.548066, -48.649813, 0), V(-14.471183, -48.694946, 0), V(-14.391141, -48.734749, 0), V(-14.309264, -48.769868, 0), V(-14.225287, -48.799229, 0), V(-14.139726, -48.823429, 0), V(-14.052135, -48.841832, 0), V(-13.963148, -48.855038, 0), V(-13.872275, -48.863831, 0), V(-13.811062, -48.86465, 0), V(-13.780088, -48.865064, 0)], [4, 1, 1, 1, 1, 1, 1, 1, 1, 1, 1, 1, 1, 1, 1, 1, 1, 1, 1, 1, 1, 1, 1, 1, 4], [0, 0.993588149, 1.983757546, 2.962012758, 3.932297264, 4.913089422, 5.895147596, 6.892791648, 7.904042674, 8.913936126, 9.911190904, 10.901569418, 11.888649192, 12.866825019, 13.856968273, 14.856789458, 15.866221433, 16.879824684, 17.888846278, 18.887838639, 19.896937192, 20.90452114, 21.923117541, 22.949107649, 24], False, 3, [1, 1, 1, 1, 1, 1, 1, 1, 1, 1, 1, 1, 1, 1, 1, 1, 1, 1, 1, 1, 1, 1, 1, 1, 1, 1, 1], False), False)
sketch11.addGeometry(Part.BSplineCurve([V(-13.869131, -46.259936, 0), V(-13.896502, -46.260365, 0), V(-13.95116, -46.261221, 0), V(-14.032708, -46.270025, 0), V(-14.11346, -46.283158, 0), V(-14.193467, -46.301954, 0), V(-14.272897, -46.325129, 0), V(-14.351142, -46.354682, 0), V(-14.428684, -46.389252, 0), V(-14.504894, -46.429035, 0), V(-14.578968, -46.473167, 0), V(-14.649369, -46.521737, 0), V(-14.71566, -46.574666, 0), V(-14.777964, -46.631803, 0), V(-14.835915, -46.693237, 0), V(-14.890373, -46.758083, 0), V(-14.939927, -46.827862, 0), V(-14.985541, -46.901071, 0), V(-15.025766, -46.977189, 0), V(-15.061972, -47.054386, 0), V(-15.091778, -47.133316, 0), V(-15.115899, -47.213715, 0), V(-15.135112, -47.29548, 0), V(-15.149058, -47.378519, 0), V(-15.157689, -47.463097, 0), V(-15.158543, -47.519866, 0), V(-15.158974, -47.548508, 0)], [4, 1, 1, 1, 1, 1, 1, 1, 1, 1, 1, 1, 1, 1, 1, 1, 1, 1, 1, 1, 1, 1, 1, 1, 4], [0, 0.9732313, 1.943419598, 2.914105962, 3.881741322, 4.864768402, 5.855028487, 6.854206409, 7.882911434, 8.911035887, 9.919250175, 10.922630637, 11.925982763, 12.923451909, 13.924676513, 14.935397504, 15.964931351, 16.990480746, 17.995899336, 18.995873688, 19.988284801, 20.979664002, 21.981342857, 22.981544644, 24], False, 3, [1, 1, 1, 1, 1, 1, 1, 1, 1, 1, 1, 1, 1, 1, 1, 1, 1, 1, 1, 1, 1, 1, 1, 1, 1, 1, 1], False), False)
sketch11.addGeometry(Part.BSplineCurve([V(-12.699494, -46.789103, 0), V(-12.747889, -46.746844, 0), V(-12.8421, -46.664579, 0), V(-12.989615, -46.55591, 0), V(-13.137956, -46.464251, 0), V(-13.287161, -46.390696, 0), V(-13.434713, -46.331783, 0), V(-13.581283, -46.29128, 0), V(-13.725706, -46.26482, 0), V(-13.821744, -46.261549, 0), V(-13.869131, -46.259936, 0)], [4, 1, 1, 1, 1, 1, 1, 1, 4], [0, 1.174203348, 2.285866929, 3.345479548, 4.357773815, 5.323690501, 6.245291137, 7.134199255, 8], False, 3, [1, 1, 1, 1, 1, 1, 1, 1, 1, 1, 1], False), False)
sketch11.addGeometry(Part.LineSegment(V(15.965705, -49.15, 0), V(14.479968, -45.975, 0)), False)
sketch11.addGeometry(Part.LineSegment(V(14.479968, -45.975, 0), V(14.352764, -45.975, 0)), False)
sketch11.addGeometry(Part.LineSegment(V(14.352764, -45.975, 0), V(12.872115, -49.15, 0)), False)
sketch11.addGeometry(Part.LineSegment(V(12.872115, -49.15, 0), V(13.284891, -49.15, 0)), False)
sketch11.addGeometry(Part.LineSegment(V(13.284891, -49.15, 0), V(13.766992, -48.132372, 0)), False)
sketch11.addGeometry(Part.LineSegment(V(13.766992, -48.132372, 0), V(15.06574, -48.132372, 0)), False)
sketch11.addGeometry(Part.LineSegment(V(15.06574, -48.132372, 0), V(15.547842, -49.15, 0)), False)
sketch11.addGeometry(Part.LineSegment(V(15.547842, -49.15, 0), V(15.965705, -49.15, 0)), False)
sketch11.addGeometry(Part.LineSegment(V(14.416366, -46.668895, 0), V(14.91564, -47.766026, 0)), False)
sketch11.addGeometry(Part.LineSegment(V(14.91564, -47.766026, 0), V(13.92218, -47.766026, 0)), False)
sketch11.addGeometry(Part.LineSegment(V(13.92218, -47.766026, 0), V(14.416366, -46.668895, 0)), False)
sketch11.addConstraint(Sketcher.Constraint("Block", 5))
sketch11.addConstraint(Sketcher.Constraint("Block", 6))
sketch11.addConstraint(Sketcher.Constraint("Block", 7))
sketch11.addConstraint(Sketcher.Constraint("Block", 8))
sketch11.addConstraint(Sketcher.Constraint("Block", 9))
sketch11.addConstraint(Sketcher.Constraint("Block", 13))
sketch11.addConstraint(Sketcher.Constraint("Block", 14))
sketch11.addConstraint(Sketcher.Constraint("Block", 15))
sketch11.addConstraint(Sketcher.Constraint("Block", 16))
sketch11.addConstraint(Sketcher.Constraint("Coincident", 0, 2, 1, 1))
sketch11.addConstraint(Sketcher.Constraint("Coincident", 1, 2, 2, 1))
sketch11.addConstraint(Sketcher.Constraint("Coincident", 2, 2, 3, 1))
sketch11.addConstraint(Sketcher.Constraint("Coincident", 3, 2, 0, 1))
sketch11.addConstraint(Sketcher.Constraint("Coincident", 4, 2, 5, 2))
sketch11.addConstraint(Sketcher.Constraint("Coincident", 9, 1, 10, 1))
sketch11.addConstraint(Sketcher.Constraint("Coincident", 10, 2, 11, 1))
sketch11.addConstraint(Sketcher.Constraint("Coincident", 11, 2, 12, 1))
sketch11.addConstraint(Sketcher.Constraint("Coincident", 12, 2, 13, 2))
sketch11.addConstraint(Sketcher.Constraint("Coincident", 16, 1, 4, 1))
sketch11.addConstraint(Sketcher.Constraint("Coincident", 17, 2, 18, 1))
sketch11.addConstraint(Sketcher.Constraint("Coincident", 18, 2, 19, 1))
sketch11.addConstraint(Sketcher.Constraint("Coincident", 19, 2, 20, 1))
sketch11.addConstraint(Sketcher.Constraint("Coincident", 20, 2, 21, 1))
sketch11.addConstraint(Sketcher.Constraint("Coincident", 21, 2, 22, 1))
sketch11.addConstraint(Sketcher.Constraint("Coincident", 22, 2, 23, 1))
sketch11.addConstraint(Sketcher.Constraint("Coincident", 23, 2, 24, 1))
sketch11.addConstraint(Sketcher.Constraint("Coincident", 24, 2, 17, 1))
sketch11.addConstraint(Sketcher.Constraint("Coincident", 25, 2, 26, 1))
sketch11.addConstraint(Sketcher.Constraint("Coincident", 26, 2, 27, 1))
sketch11.addConstraint(Sketcher.Constraint("Coincident", 27, 2, 25, 1))
sketch11.addConstraint(Sketcher.Constraint("Vertical", 0))
sketch11.addConstraint(Sketcher.Constraint("Horizontal", 1))
sketch11.addConstraint(Sketcher.Constraint("Vertical", 2))
sketch11.addConstraint(Sketcher.Constraint("Horizontal", 3))
sketch11.addConstraint(Sketcher.Constraint("Horizontal", 10))
sketch11.addConstraint(Sketcher.Constraint("Vertical", 11))
sketch11.addConstraint(Sketcher.Constraint("Horizontal", 12))
sketch11.addConstraint(Sketcher.Constraint("Horizontal", 18))
sketch11.addConstraint(Sketcher.Constraint("Horizontal", 20))
sketch11.addConstraint(Sketcher.Constraint("Horizontal", 22))
sketch11.addConstraint(Sketcher.Constraint("Horizontal", 24))
sketch11.addConstraint(Sketcher.Constraint("Horizontal", 26))
sketch11.addConstraint(Sketcher.Constraint("Horizontal", 3, 2, 17, 2))
sketch11.addConstraint(Sketcher.Constraint("Horizontal", 1, 2, 19, 2))
sketch11.addConstraint(Sketcher.Constraint("Horizontal", 20, 2, 23, 2))
sketch11.addConstraint(Sketcher.Constraint("Equal", 21, 23))
sketch11.addConstraint(Sketcher.Constraint("DistanceY", 0, 2, 0, 1, Q("3.175 mm")))
sketch11.addConstraint(Sketcher.Constraint("DistanceY", 0, 2, -1, 1, Q("49.15 mm")))
sketch11.addConstraint(Sketcher.Constraint("DistanceX", 1, 1, 1, 2, Q("0.407051 mm")))
sketch11.addConstraint(Sketcher.Constraint("DistanceX", 10, 2, 10, 1, Q("1.424679 mm")))
sketch11.addConstraint(Sketcher.Constraint("DistanceX", 26, 2, 26, 1, Q("0.99346 mm")))
sketch11.addConstraint(Sketcher.Constraint("DistanceX", 20, 2, 21, 2, Q("0.482101 mm")))
sketch11.addConstraint(Sketcher.Constraint("DistanceX", 25, 2, 22, 2, Q("0.1501 mm")))
sketch11.addConstraint(Sketcher.Constraint("DistanceX", 18, 2, 27, 2, Q("0.063602 mm")))
sketch11.addConstraint(Sketcher.Constraint("DistanceX", 27, 2, 17, 2, Q("0.063602 mm")))
sketch11.addConstraint(Sketcher.Constraint("Distance", 17, Q("3.50543 mm")))
sketch11.addConstraint(Sketcher.Constraint("Distance", 21, Q("1.12605 mm")))
sketch11.addConstraint(Sketcher.Constraint("Distance", 25, Q("1.205392 mm")))
sketch11.addConstraint(Sketcher.Constraint("DistanceX", 20, 1, 20, 2, Q("0.412775 mm")))
sketch11.addConstraint(Sketcher.Constraint("DistanceX", 22, 1, 22, 2, Q("1.298748 mm")))
sketch11.addConstraint(Sketcher.Constraint("DistanceX", 24, 1, 24, 2, Q("0.417864 mm")))
sketch11.addConstraint(Sketcher.Constraint("DistanceX", 0, 2, -1, 1, Q("16.542949 mm")))
sketch11.addConstraint(Sketcher.Constraint("DistanceX", -1, 1, 20, 2, Q("13.284891 mm")))
sketch11.addConstraint(Sketcher.Constraint("DistanceY", 25, 2, -1, 1, Q("47.766026 mm")))
pocket5 = body4.newObject("PartDesign::Pocket", "Pocket004")
pocket5.Profile = sketch11
pocket5.Length = 2
doc.recompute()

fillet = body4.newObject("PartDesign::Fillet", "Fillet")
fillet.Base = (pocket5, edges_at(pocket5, [
    (17.9, -53.9, -13.6),
    (17.9, -41.4, -13.6),
    (-17.9, -41.4, -13.6),
    (-17.9, -53.9, -13.6),
]))
fillet.Radius = 3

doc.recompute()
